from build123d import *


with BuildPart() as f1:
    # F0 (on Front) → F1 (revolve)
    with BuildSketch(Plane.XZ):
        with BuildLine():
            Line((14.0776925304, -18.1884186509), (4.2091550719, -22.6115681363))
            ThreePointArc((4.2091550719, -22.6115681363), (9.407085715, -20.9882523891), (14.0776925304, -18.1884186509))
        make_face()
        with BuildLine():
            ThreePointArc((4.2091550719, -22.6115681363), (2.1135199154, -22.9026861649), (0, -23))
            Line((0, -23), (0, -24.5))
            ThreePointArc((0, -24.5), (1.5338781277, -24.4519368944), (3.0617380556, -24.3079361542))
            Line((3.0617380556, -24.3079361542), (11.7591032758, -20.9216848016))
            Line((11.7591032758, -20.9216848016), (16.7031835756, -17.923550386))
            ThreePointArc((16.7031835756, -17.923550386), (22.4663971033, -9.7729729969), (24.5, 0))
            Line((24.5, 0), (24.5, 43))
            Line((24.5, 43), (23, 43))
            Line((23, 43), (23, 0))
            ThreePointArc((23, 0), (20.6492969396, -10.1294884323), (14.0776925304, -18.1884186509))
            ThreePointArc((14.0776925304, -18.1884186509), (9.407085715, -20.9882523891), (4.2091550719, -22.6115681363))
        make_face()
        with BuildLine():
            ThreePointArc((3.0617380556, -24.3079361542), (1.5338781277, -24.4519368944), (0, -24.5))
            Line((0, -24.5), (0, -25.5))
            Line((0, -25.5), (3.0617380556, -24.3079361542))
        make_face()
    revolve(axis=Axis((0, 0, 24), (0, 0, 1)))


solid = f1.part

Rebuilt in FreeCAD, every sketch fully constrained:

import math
import FreeCAD as App
import Part
import Sketcher

doc = App.newDocument("Part")
body = doc.addObject("PartDesign::Body", "Body")

sketch1 = body.newObject("Sketcher::SketchObject", "Sketch")
sketch1.AttachmentSupport = (doc.getObject("XZ_Plane"), [""])
sketch1.MapMode = "FlatFace"
sketch1.addGeometry(Part.LineSegment(App.Vector(14.077693, -18.188419, 0), App.Vector(4.209155, -22.611568, 0)), False)
sketch1.addGeometry(Part.ArcOfCircle(Part.Circle(App.Vector(0, 0, 0), App.Vector(0, 0, 1), 23), math.radians(-90), math.radians(-79.455057)), False)
sketch1.addGeometry(Part.LineSegment(App.Vector(0, -23, 0), App.Vector(0, -25.5, 0)), False)
sketch1.addGeometry(Part.LineSegment(App.Vector(0, -25.5, 0), App.Vector(3.061738, -24.307936, 0)), False)
sketch1.addGeometry(Part.LineSegment(App.Vector(3.061738, -24.307936, 0), App.Vector(11.759103, -20.921685, 0)), False)
sketch1.addGeometry(Part.LineSegment(App.Vector(11.759103, -20.921685, 0), App.Vector(16.703184, -17.92355, 0)), False)
sketch1.addGeometry(Part.ArcOfCircle(Part.Circle(App.Vector(0, 0, 0), App.Vector(0, 0, 1), 24.5), math.radians(-47.018468), math.radians(0)), False)
sketch1.addGeometry(Part.LineSegment(App.Vector(24.5, 0, 0), App.Vector(24.5, 43, 0)), False)
sketch1.addGeometry(Part.LineSegment(App.Vector(24.5, 43, 0), App.Vector(23, 43, 0)), False)
sketch1.addGeometry(Part.LineSegment(App.Vector(23, 43, 0), App.Vector(23, 0, 0)), False)
sketch1.addGeometry(Part.ArcOfCircle(Part.Circle(App.Vector(0, 0, 0), App.Vector(0, 0, 1), 23), math.radians(-52.260412), math.radians(0)), False)
sketch1.addConstraint(Sketcher.Constraint("Coincident", 0, 2, 1, 2))
sketch1.addConstraint(Sketcher.Constraint("Coincident", 1, 1, 2, 1))
sketch1.addConstraint(Sketcher.Constraint("Coincident", 2, 2, 3, 1))
sketch1.addConstraint(Sketcher.Constraint("Coincident", 3, 2, 4, 1))
sketch1.addConstraint(Sketcher.Constraint("Coincident", 4, 2, 5, 1))
sketch1.addConstraint(Sketcher.Constraint("Coincident", 5, 2, 6, 1))
sketch1.addConstraint(Sketcher.Constraint("Tangent", 6, 2, 7, 1))
sketch1.addConstraint(Sketcher.Constraint("Coincident", 7, 2, 8, 1))
sketch1.addConstraint(Sketcher.Constraint("Coincident", 8, 2, 9, 1))
sketch1.addConstraint(Sketcher.Constraint("Tangent", 9, 2, 10, 2))
sketch1.addConstraint(Sketcher.Constraint("Coincident", 10, 1, 0, 1))
sketch1.addConstraint(Sketcher.Constraint("Vertical", 2))
sketch1.addConstraint(Sketcher.Constraint("Vertical", 7))
sketch1.addConstraint(Sketcher.Constraint("Horizontal", 8))
sketch1.addConstraint(Sketcher.Constraint("Vertical", 9))
sketch1.addConstraint(Sketcher.Constraint("Coincident", 1, 3, -1, 1))
sketch1.addConstraint(Sketcher.Constraint("Coincident", 6, 3, -1, 1))
sketch1.addConstraint(Sketcher.Constraint("Coincident", 10, 3, -1, 1))
sketch1.addConstraint(Sketcher.Constraint("Equal", 1, 10))
sketch1.addConstraint(Sketcher.Constraint("PointOnObject", 1, 1, -2))
sketch1.addConstraint(Sketcher.Constraint("Parallel", 3, 4))
sketch1.addConstraint(Sketcher.Constraint("Radius", 1, 23.0))
sketch1.addConstraint(Sketcher.Constraint("Radius", 6, 24.5))
sketch1.addConstraint(Sketcher.Constraint("DistanceY", 7, 1, 7, 2, 43.0))
sketch1.addConstraint(Sketcher.Constraint("DistanceY", 2, 2, 2, 1, 2.5))
sketch1.addConstraint(Sketcher.Constraint("Distance", 4, 9.33332))
sketch1.addConstraint(Sketcher.Constraint("DistanceY", 0, 2, -1, 1, 22.611568))
sketch1.addConstraint(Sketcher.Constraint("DistanceX", -1, 1, 3, 2, 3.061738))
sketch1.addConstraint(Sketcher.Constraint("DistanceY", 5, 2, -1, 1, 17.92355))
sketch1.addConstraint(Sketcher.Constraint("DistanceY", 10, 1, -1, 1, 18.188419))
sketch1.addConstraint(Sketcher.Constraint("DistanceY", 3, 2, 0, 2, 1.696368))
revolution = body.newObject("PartDesign::Revolution", "Revolution")
revolution.Profile = sketch1
revolution.ReferenceAxis = (sketch1, ["V_Axis"])
revolution.Angle = 360

doc.recompute()
